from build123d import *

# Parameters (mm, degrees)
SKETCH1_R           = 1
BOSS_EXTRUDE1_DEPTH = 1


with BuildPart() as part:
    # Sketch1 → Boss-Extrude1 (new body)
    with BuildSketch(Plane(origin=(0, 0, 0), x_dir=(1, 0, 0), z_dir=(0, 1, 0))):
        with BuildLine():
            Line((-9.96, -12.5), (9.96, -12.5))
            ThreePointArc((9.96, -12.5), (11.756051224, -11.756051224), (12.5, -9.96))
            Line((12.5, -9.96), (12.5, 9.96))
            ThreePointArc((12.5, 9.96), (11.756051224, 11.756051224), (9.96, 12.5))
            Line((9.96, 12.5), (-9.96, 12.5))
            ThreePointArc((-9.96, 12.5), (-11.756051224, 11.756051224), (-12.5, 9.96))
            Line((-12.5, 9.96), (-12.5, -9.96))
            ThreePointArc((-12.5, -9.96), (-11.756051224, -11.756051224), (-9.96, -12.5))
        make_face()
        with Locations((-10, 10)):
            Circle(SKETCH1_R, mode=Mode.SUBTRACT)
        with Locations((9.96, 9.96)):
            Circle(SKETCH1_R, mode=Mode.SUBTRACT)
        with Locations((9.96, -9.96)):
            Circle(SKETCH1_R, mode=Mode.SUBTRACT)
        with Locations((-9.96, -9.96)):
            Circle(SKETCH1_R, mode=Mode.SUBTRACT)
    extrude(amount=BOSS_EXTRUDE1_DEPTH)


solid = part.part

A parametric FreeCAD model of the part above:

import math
import FreeCAD as App
import Part
import Sketcher
from FreeCAD import Vector
Q = App.Units.Quantity

doc = App.newDocument("Part")
params = doc.addObject("Spreadsheet::Sheet", "Params")
for row, (alias, value) in enumerate([
    ("sketch1_diameter", "2 mm"),
    ("sketch1_radius", "2.54 mm"),
    ("sketch1_width", "19.92 mm"),
    ("pad1_length", "1 mm"),
], start=1):
    params.set(f"A{row}", alias)
    params.set(f"B{row}", "=" + value)
    params.setAlias(f"B{row}", alias)

body = doc.addObject("PartDesign::Body", "Body")

# Sketch on XZ plane
sketch1 = body.newObject("Sketcher::SketchObject", "Sketch")
sketch1.AttachmentSupport = (doc.getObject("XZ_Plane"), [""])
sketch1.MapMode = "FlatFace"
sketch1.addGeometry(Part.LineSegment(Vector(-9.96, 12.5, 0), Vector(9.96, 12.5, 0)), False)
sketch1.addGeometry(Part.ArcOfCircle(Part.Circle(Vector(9.96, 9.96, 0), Vector(0, 0, 1), 2.54), math.radians(0), math.radians(90)), False)
sketch1.addGeometry(Part.LineSegment(Vector(12.5, 9.96, 0), Vector(12.5, -9.96, 0)), False)
sketch1.addGeometry(Part.ArcOfCircle(Part.Circle(Vector(9.96, -9.96, 0), Vector(0, 0, 1), 2.54), math.radians(-90), math.radians(0)), False)
sketch1.addGeometry(Part.LineSegment(Vector(9.96, -12.5, 0), Vector(-9.96, -12.5, 0)), False)
sketch1.addGeometry(Part.ArcOfCircle(Part.Circle(Vector(-9.96, -9.96, 0), Vector(0, 0, 1), 2.54), math.radians(-180), math.radians(-90)), False)
sketch1.addGeometry(Part.LineSegment(Vector(-12.5, -9.96, 0), Vector(-12.5, 9.96, 0)), False)
sketch1.addGeometry(Part.ArcOfCircle(Part.Circle(Vector(-9.96, 9.96, 0), Vector(0, 0, 1), 2.54), math.radians(90), math.radians(180)), False)
sketch1.addGeometry(Part.Circle(Vector(-9.96, 9.96, 0), Vector(0, 0, 1), 1), False)
sketch1.addGeometry(Part.Circle(Vector(9.96, 9.96, 0), Vector(0, 0, 1), 1), False)
sketch1.addGeometry(Part.Circle(Vector(-10, -10, 0), Vector(0, 0, 1), 1), False)
sketch1.addGeometry(Part.Circle(Vector(9.96, -9.96, 0), Vector(0, 0, 1), 1), False)
sketch1.addConstraint(Sketcher.Constraint("Tangent", 0, 2, 1, 2))
sketch1.addConstraint(Sketcher.Constraint("Tangent", 1, 1, 2, 1))
sketch1.addConstraint(Sketcher.Constraint("Tangent", 2, 2, 3, 2))
sketch1.addConstraint(Sketcher.Constraint("Tangent", 3, 1, 4, 1))
sketch1.addConstraint(Sketcher.Constraint("Tangent", 4, 2, 5, 2))
sketch1.addConstraint(Sketcher.Constraint("Tangent", 5, 1, 6, 1))
sketch1.addConstraint(Sketcher.Constraint("Tangent", 6, 2, 7, 2))
sketch1.addConstraint(Sketcher.Constraint("Tangent", 7, 1, 0, 1))
sketch1.addConstraint(Sketcher.Constraint("Horizontal", 0))
sketch1.addConstraint(Sketcher.Constraint("Vertical", 2))
sketch1.addConstraint(Sketcher.Constraint("Horizontal", 4))
sketch1.addConstraint(Sketcher.Constraint("Vertical", 6))
sketch1.addConstraint(Sketcher.Constraint("Coincident", 8, 3, 7, 3))
sketch1.addConstraint(Sketcher.Constraint("Coincident", 9, 3, 1, 3))
sketch1.addConstraint(Sketcher.Constraint("Coincident", 11, 3, 3, 3))
sketch1.addConstraint(Sketcher.Constraint("Equal", 1, 3))
sketch1.addConstraint(Sketcher.Constraint("Equal", 3, 5))
sketch1.addConstraint(Sketcher.Constraint("Equal", 5, 7))
sketch1.addConstraint(Sketcher.Constraint("Equal", 8, 9))
sketch1.addConstraint(Sketcher.Constraint("Equal", 9, 10))
sketch1.addConstraint(Sketcher.Constraint("Equal", 10, 11))
sketch1.addConstraint(Sketcher.Constraint("Symmetric", 1, 3, 5, 3, -1, 1))
sketch1.addConstraint(Sketcher.Constraint("Equal", 4, 2))
sketch1.addConstraint(Sketcher.Constraint("Diameter", 8, Q("2 mm")))
sketch1.addConstraint(Sketcher.Constraint("Radius", 1, Q("2.54 mm")))
sketch1.addConstraint(Sketcher.Constraint("DistanceX", 10, 3, -1, 1, Q("10 mm")))
sketch1.addConstraint(Sketcher.Constraint("DistanceY", 10, 3, -1, 1, Q("10 mm")))
sketch1.addConstraint(Sketcher.Constraint("DistanceX", 0, 1, 0, 2, Q("19.92 mm")))
sketch1.setExpression("Constraints[23]", "Params.sketch1_diameter")
sketch1.setExpression("Constraints[24]", "Params.sketch1_radius")
sketch1.setExpression("Constraints[27]", "Params.sketch1_width")
pad1 = body.newObject("PartDesign::Pad", "Pad")
pad1.Profile = sketch1
pad1.setExpression("Length", "Params.pad1_length")
pad1.Reversed = True

doc.recompute()
